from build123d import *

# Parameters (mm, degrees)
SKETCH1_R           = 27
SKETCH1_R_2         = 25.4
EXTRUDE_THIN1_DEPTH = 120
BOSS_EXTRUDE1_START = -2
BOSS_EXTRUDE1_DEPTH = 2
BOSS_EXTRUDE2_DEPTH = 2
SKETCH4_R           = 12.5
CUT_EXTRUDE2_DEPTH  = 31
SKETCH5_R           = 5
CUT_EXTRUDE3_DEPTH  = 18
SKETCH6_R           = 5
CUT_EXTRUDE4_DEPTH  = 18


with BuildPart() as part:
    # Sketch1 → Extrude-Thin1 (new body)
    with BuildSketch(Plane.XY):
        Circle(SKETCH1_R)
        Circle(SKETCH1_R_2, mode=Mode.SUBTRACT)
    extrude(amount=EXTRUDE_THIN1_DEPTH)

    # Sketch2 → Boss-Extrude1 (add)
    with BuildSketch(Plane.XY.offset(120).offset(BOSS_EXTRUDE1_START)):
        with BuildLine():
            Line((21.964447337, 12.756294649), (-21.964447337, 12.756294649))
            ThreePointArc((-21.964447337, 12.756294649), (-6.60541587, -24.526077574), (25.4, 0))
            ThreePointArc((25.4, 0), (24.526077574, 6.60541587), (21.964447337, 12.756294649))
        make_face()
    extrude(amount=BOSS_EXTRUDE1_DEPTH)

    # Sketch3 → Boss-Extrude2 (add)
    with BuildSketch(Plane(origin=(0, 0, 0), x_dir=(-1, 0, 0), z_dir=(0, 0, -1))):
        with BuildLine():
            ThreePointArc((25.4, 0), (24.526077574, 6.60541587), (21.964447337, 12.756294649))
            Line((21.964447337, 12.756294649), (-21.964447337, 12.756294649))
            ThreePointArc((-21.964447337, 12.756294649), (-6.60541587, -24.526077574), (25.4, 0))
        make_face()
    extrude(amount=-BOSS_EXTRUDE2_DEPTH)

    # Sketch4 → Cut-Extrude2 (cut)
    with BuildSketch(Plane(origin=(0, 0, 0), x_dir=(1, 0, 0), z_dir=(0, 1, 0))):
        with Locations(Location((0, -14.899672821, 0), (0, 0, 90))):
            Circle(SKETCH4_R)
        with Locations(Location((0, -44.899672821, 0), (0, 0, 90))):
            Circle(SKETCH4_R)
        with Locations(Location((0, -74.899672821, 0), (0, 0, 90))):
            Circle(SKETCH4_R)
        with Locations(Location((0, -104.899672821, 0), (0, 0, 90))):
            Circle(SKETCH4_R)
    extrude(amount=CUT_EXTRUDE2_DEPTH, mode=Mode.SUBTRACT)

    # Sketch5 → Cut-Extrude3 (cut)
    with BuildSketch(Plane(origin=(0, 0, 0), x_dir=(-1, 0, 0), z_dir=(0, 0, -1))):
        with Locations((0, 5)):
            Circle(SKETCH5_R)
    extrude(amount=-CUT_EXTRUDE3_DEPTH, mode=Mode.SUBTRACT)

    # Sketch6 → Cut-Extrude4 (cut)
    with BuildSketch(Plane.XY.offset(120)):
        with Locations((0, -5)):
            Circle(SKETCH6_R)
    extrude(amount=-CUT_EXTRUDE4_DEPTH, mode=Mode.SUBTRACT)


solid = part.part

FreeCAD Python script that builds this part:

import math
import FreeCAD as App
import Part
import Sketcher
Q = App.Units.Quantity

doc = App.newDocument("Part")
body = doc.addObject("PartDesign::Body", "Body")

# Sketch on XY plane
sketch1 = body.newObject("Sketcher::SketchObject", "Sketch")
sketch1.AttachmentSupport = (doc.getObject("XY_Plane"), [""])
sketch1.MapMode = "FlatFace"
sketch1.addGeometry(Part.Circle(App.Vector(0, 0, 0), App.Vector(0, 0, 1), 27), False)
sketch1.addGeometry(Part.Circle(App.Vector(0, 0, 0), App.Vector(0, 0, 1), 25), False)
sketch1.addConstraint(Sketcher.Constraint("Coincident", 0, 3, -1, 1))
sketch1.addConstraint(Sketcher.Constraint("Coincident", 1, 3, -1, 1))
sketch1.addConstraint(Sketcher.Constraint("Diameter", 0, Q("54 mm")))
sketch1.addConstraint(Sketcher.Constraint("Diameter", 1, Q("50.8 mm")))
pad1 = body.newObject("PartDesign::Pad", "Pad")
pad1.Profile = sketch1
pad1.Length = 120

# Sketch on XY plane
sketch2 = body.newObject("Sketcher::SketchObject", "Sketch001")
sketch2.AttachmentSupport = (doc.getObject("XY_Plane"), [""])
sketch2.MapMode = "FlatFace"
sketch2.AttachmentOffset = App.Placement(App.Vector(0, 0, 118), App.Rotation())
sketch2.addGeometry(Part.LineSegment(App.Vector(22, 13, 0), App.Vector(-22, 13, 0)), False)
sketch2.addGeometry(Part.ArcOfCircle(Part.Circle(App.Vector(0, 0, 0), App.Vector(0, 0, 1), 25), math.radians(150), math.radians(360)), False)
sketch2.addGeometry(Part.ArcOfCircle(Part.Circle(App.Vector(0, 0, 0), App.Vector(0, 0, 1), 25), math.radians(0), math.radians(30)), False)
sketch2.addConstraint(Sketcher.Constraint("Coincident", 0, 2, 1, 1))
sketch2.addConstraint(Sketcher.Constraint("Tangent", 1, 2, 2, 1))
sketch2.addConstraint(Sketcher.Constraint("Coincident", 2, 2, 0, 1))
sketch2.addConstraint(Sketcher.Constraint("Horizontal", 0))
sketch2.addConstraint(Sketcher.Constraint("Coincident", 1, 3, -1, 1))
sketch2.addConstraint(Sketcher.Constraint("Equal", 1, 2))
sketch2.addConstraint(Sketcher.Constraint("PointOnObject", 1, 2, -1))
sketch2.addConstraint(Sketcher.Constraint("Radius", 1, Q("25.4 mm")))
sketch2.addConstraint(Sketcher.Constraint("DistanceX", 0, 2, 0, 1, Q("43.928895 mm")))
pad2 = body.newObject("PartDesign::Pad", "Pad001")
pad2.Profile = sketch2
pad2.Length = 2

# Sketch on XY plane
sketch3 = body.newObject("Sketcher::SketchObject", "Sketch002")
sketch3.AttachmentSupport = (doc.getObject("XY_Plane"), [""])
sketch3.MapMode = "FlatFace"
sketch3.addGeometry(Part.ArcOfCircle(Part.Circle(App.Vector(0, 0, 0), App.Vector(0, 0, 1), 25), math.radians(150), math.radians(180)), False)
sketch3.addGeometry(Part.LineSegment(App.Vector(-22, 13, 0), App.Vector(22, 13, 0)), False)
sketch3.addGeometry(Part.ArcOfCircle(Part.Circle(App.Vector(0, 0, 0), App.Vector(0, 0, 1), 25), math.radians(180), math.radians(390)), False)
sketch3.addConstraint(Sketcher.Constraint("Coincident", 0, 1, 1, 1))
sketch3.addConstraint(Sketcher.Constraint("Coincident", 1, 2, 2, 2))
sketch3.addConstraint(Sketcher.Constraint("Tangent", 2, 1, 0, 2))
sketch3.addConstraint(Sketcher.Constraint("Horizontal", 1))
sketch3.addConstraint(Sketcher.Constraint("Coincident", 0, 3, -1, 1))
sketch3.addConstraint(Sketcher.Constraint("Equal", 0, 2))
sketch3.addConstraint(Sketcher.Constraint("PointOnObject", 2, 1, -1))
sketch3.addConstraint(Sketcher.Constraint("Radius", 0, Q("25.4 mm")))
sketch3.addConstraint(Sketcher.Constraint("DistanceX", 1, 1, 1, 2, Q("43.928895 mm")))
pad3 = body.newObject("PartDesign::Pad", "Pad002")
pad3.Profile = sketch3
pad3.Length = 2

# Sketch on XZ plane
sketch4 = body.newObject("Sketcher::SketchObject", "Sketch003")
sketch4.AttachmentSupport = (doc.getObject("XZ_Plane"), [""])
sketch4.MapMode = "FlatFace"
sketch4.addGeometry(Part.Circle(App.Vector(0, 15, 0), App.Vector(0, 0, 1), 12), False)
sketch4.addGeometry(Part.Circle(App.Vector(0, 45, 0), App.Vector(0, 0, 1), 12), False)
sketch4.addGeometry(Part.Circle(App.Vector(0, 75, 0), App.Vector(0, 0, 1), 12), False)
sketch4.addGeometry(Part.Circle(App.Vector(0, 105, 0), App.Vector(0, 0, 1), 12), False)
sketch4.addConstraint(Sketcher.Constraint("Equal", 0, 1))
sketch4.addConstraint(Sketcher.Constraint("Equal", 1, 2))
sketch4.addConstraint(Sketcher.Constraint("Equal", 2, 3))
sketch4.addConstraint(Sketcher.Constraint("PointOnObject", 0, 3, -2))
sketch4.addConstraint(Sketcher.Constraint("PointOnObject", 1, 3, -2))
sketch4.addConstraint(Sketcher.Constraint("PointOnObject", 2, 3, -2))
sketch4.addConstraint(Sketcher.Constraint("PointOnObject", 3, 3, -2))
sketch4.addConstraint(Sketcher.Constraint("Diameter", 0, Q("25 mm")))
sketch4.addConstraint(Sketcher.Constraint("DistanceY", 0, 3, 1, 3, Q("30 mm")))
sketch4.addConstraint(Sketcher.Constraint("DistanceY", 1, 3, 2, 3, Q("30 mm")))
sketch4.addConstraint(Sketcher.Constraint("DistanceY", 2, 3, 3, 3, Q("30 mm")))
sketch4.addConstraint(Sketcher.Constraint("DistanceY", -1, 1, 0, 3, Q("14.899673 mm")))
pocket1 = body.newObject("PartDesign::Pocket", "Pocket")
pocket1.Profile = sketch4
pocket1.Length = 31

# Sketch on XY plane
sketch5 = body.newObject("Sketcher::SketchObject", "Sketch004")
sketch5.AttachmentSupport = (doc.getObject("XY_Plane"), [""])
sketch5.MapMode = "FlatFace"
sketch5.addGeometry(Part.Circle(App.Vector(0, 5, 0), App.Vector(0, 0, 1), 5), False)
sketch5.addConstraint(Sketcher.Constraint("PointOnObject", 0, 3, -2))
sketch5.addConstraint(Sketcher.Constraint("Diameter", 0, Q("10 mm")))
sketch5.addConstraint(Sketcher.Constraint("DistanceY", -1, 1, 0, 3, Q("5 mm")))
pocket2 = body.newObject("PartDesign::Pocket", "Pocket001")
pocket2.Profile = sketch5
pocket2.Length = 18
pocket2.Reversed = True

# Sketch on XY plane
sketch6 = body.newObject("Sketcher::SketchObject", "Sketch005")
sketch6.AttachmentSupport = (doc.getObject("XY_Plane"), [""])
sketch6.MapMode = "FlatFace"
sketch6.AttachmentOffset = App.Placement(App.Vector(0, 0, 120), App.Rotation())
sketch6.addGeometry(Part.Circle(App.Vector(0, -5, 0), App.Vector(0, 0, 1), 5), False)
sketch6.addConstraint(Sketcher.Constraint("PointOnObject", 0, 3, -2))
sketch6.addConstraint(Sketcher.Constraint("Diameter", 0, Q("10 mm")))
sketch6.addConstraint(Sketcher.Constraint("DistanceY", 0, 3, -1, 1, Q("5 mm")))
pocket3 = body.newObject("PartDesign::Pocket", "Pocket002")
pocket3.Profile = sketch6
pocket3.Length = 18

doc.recompute()
